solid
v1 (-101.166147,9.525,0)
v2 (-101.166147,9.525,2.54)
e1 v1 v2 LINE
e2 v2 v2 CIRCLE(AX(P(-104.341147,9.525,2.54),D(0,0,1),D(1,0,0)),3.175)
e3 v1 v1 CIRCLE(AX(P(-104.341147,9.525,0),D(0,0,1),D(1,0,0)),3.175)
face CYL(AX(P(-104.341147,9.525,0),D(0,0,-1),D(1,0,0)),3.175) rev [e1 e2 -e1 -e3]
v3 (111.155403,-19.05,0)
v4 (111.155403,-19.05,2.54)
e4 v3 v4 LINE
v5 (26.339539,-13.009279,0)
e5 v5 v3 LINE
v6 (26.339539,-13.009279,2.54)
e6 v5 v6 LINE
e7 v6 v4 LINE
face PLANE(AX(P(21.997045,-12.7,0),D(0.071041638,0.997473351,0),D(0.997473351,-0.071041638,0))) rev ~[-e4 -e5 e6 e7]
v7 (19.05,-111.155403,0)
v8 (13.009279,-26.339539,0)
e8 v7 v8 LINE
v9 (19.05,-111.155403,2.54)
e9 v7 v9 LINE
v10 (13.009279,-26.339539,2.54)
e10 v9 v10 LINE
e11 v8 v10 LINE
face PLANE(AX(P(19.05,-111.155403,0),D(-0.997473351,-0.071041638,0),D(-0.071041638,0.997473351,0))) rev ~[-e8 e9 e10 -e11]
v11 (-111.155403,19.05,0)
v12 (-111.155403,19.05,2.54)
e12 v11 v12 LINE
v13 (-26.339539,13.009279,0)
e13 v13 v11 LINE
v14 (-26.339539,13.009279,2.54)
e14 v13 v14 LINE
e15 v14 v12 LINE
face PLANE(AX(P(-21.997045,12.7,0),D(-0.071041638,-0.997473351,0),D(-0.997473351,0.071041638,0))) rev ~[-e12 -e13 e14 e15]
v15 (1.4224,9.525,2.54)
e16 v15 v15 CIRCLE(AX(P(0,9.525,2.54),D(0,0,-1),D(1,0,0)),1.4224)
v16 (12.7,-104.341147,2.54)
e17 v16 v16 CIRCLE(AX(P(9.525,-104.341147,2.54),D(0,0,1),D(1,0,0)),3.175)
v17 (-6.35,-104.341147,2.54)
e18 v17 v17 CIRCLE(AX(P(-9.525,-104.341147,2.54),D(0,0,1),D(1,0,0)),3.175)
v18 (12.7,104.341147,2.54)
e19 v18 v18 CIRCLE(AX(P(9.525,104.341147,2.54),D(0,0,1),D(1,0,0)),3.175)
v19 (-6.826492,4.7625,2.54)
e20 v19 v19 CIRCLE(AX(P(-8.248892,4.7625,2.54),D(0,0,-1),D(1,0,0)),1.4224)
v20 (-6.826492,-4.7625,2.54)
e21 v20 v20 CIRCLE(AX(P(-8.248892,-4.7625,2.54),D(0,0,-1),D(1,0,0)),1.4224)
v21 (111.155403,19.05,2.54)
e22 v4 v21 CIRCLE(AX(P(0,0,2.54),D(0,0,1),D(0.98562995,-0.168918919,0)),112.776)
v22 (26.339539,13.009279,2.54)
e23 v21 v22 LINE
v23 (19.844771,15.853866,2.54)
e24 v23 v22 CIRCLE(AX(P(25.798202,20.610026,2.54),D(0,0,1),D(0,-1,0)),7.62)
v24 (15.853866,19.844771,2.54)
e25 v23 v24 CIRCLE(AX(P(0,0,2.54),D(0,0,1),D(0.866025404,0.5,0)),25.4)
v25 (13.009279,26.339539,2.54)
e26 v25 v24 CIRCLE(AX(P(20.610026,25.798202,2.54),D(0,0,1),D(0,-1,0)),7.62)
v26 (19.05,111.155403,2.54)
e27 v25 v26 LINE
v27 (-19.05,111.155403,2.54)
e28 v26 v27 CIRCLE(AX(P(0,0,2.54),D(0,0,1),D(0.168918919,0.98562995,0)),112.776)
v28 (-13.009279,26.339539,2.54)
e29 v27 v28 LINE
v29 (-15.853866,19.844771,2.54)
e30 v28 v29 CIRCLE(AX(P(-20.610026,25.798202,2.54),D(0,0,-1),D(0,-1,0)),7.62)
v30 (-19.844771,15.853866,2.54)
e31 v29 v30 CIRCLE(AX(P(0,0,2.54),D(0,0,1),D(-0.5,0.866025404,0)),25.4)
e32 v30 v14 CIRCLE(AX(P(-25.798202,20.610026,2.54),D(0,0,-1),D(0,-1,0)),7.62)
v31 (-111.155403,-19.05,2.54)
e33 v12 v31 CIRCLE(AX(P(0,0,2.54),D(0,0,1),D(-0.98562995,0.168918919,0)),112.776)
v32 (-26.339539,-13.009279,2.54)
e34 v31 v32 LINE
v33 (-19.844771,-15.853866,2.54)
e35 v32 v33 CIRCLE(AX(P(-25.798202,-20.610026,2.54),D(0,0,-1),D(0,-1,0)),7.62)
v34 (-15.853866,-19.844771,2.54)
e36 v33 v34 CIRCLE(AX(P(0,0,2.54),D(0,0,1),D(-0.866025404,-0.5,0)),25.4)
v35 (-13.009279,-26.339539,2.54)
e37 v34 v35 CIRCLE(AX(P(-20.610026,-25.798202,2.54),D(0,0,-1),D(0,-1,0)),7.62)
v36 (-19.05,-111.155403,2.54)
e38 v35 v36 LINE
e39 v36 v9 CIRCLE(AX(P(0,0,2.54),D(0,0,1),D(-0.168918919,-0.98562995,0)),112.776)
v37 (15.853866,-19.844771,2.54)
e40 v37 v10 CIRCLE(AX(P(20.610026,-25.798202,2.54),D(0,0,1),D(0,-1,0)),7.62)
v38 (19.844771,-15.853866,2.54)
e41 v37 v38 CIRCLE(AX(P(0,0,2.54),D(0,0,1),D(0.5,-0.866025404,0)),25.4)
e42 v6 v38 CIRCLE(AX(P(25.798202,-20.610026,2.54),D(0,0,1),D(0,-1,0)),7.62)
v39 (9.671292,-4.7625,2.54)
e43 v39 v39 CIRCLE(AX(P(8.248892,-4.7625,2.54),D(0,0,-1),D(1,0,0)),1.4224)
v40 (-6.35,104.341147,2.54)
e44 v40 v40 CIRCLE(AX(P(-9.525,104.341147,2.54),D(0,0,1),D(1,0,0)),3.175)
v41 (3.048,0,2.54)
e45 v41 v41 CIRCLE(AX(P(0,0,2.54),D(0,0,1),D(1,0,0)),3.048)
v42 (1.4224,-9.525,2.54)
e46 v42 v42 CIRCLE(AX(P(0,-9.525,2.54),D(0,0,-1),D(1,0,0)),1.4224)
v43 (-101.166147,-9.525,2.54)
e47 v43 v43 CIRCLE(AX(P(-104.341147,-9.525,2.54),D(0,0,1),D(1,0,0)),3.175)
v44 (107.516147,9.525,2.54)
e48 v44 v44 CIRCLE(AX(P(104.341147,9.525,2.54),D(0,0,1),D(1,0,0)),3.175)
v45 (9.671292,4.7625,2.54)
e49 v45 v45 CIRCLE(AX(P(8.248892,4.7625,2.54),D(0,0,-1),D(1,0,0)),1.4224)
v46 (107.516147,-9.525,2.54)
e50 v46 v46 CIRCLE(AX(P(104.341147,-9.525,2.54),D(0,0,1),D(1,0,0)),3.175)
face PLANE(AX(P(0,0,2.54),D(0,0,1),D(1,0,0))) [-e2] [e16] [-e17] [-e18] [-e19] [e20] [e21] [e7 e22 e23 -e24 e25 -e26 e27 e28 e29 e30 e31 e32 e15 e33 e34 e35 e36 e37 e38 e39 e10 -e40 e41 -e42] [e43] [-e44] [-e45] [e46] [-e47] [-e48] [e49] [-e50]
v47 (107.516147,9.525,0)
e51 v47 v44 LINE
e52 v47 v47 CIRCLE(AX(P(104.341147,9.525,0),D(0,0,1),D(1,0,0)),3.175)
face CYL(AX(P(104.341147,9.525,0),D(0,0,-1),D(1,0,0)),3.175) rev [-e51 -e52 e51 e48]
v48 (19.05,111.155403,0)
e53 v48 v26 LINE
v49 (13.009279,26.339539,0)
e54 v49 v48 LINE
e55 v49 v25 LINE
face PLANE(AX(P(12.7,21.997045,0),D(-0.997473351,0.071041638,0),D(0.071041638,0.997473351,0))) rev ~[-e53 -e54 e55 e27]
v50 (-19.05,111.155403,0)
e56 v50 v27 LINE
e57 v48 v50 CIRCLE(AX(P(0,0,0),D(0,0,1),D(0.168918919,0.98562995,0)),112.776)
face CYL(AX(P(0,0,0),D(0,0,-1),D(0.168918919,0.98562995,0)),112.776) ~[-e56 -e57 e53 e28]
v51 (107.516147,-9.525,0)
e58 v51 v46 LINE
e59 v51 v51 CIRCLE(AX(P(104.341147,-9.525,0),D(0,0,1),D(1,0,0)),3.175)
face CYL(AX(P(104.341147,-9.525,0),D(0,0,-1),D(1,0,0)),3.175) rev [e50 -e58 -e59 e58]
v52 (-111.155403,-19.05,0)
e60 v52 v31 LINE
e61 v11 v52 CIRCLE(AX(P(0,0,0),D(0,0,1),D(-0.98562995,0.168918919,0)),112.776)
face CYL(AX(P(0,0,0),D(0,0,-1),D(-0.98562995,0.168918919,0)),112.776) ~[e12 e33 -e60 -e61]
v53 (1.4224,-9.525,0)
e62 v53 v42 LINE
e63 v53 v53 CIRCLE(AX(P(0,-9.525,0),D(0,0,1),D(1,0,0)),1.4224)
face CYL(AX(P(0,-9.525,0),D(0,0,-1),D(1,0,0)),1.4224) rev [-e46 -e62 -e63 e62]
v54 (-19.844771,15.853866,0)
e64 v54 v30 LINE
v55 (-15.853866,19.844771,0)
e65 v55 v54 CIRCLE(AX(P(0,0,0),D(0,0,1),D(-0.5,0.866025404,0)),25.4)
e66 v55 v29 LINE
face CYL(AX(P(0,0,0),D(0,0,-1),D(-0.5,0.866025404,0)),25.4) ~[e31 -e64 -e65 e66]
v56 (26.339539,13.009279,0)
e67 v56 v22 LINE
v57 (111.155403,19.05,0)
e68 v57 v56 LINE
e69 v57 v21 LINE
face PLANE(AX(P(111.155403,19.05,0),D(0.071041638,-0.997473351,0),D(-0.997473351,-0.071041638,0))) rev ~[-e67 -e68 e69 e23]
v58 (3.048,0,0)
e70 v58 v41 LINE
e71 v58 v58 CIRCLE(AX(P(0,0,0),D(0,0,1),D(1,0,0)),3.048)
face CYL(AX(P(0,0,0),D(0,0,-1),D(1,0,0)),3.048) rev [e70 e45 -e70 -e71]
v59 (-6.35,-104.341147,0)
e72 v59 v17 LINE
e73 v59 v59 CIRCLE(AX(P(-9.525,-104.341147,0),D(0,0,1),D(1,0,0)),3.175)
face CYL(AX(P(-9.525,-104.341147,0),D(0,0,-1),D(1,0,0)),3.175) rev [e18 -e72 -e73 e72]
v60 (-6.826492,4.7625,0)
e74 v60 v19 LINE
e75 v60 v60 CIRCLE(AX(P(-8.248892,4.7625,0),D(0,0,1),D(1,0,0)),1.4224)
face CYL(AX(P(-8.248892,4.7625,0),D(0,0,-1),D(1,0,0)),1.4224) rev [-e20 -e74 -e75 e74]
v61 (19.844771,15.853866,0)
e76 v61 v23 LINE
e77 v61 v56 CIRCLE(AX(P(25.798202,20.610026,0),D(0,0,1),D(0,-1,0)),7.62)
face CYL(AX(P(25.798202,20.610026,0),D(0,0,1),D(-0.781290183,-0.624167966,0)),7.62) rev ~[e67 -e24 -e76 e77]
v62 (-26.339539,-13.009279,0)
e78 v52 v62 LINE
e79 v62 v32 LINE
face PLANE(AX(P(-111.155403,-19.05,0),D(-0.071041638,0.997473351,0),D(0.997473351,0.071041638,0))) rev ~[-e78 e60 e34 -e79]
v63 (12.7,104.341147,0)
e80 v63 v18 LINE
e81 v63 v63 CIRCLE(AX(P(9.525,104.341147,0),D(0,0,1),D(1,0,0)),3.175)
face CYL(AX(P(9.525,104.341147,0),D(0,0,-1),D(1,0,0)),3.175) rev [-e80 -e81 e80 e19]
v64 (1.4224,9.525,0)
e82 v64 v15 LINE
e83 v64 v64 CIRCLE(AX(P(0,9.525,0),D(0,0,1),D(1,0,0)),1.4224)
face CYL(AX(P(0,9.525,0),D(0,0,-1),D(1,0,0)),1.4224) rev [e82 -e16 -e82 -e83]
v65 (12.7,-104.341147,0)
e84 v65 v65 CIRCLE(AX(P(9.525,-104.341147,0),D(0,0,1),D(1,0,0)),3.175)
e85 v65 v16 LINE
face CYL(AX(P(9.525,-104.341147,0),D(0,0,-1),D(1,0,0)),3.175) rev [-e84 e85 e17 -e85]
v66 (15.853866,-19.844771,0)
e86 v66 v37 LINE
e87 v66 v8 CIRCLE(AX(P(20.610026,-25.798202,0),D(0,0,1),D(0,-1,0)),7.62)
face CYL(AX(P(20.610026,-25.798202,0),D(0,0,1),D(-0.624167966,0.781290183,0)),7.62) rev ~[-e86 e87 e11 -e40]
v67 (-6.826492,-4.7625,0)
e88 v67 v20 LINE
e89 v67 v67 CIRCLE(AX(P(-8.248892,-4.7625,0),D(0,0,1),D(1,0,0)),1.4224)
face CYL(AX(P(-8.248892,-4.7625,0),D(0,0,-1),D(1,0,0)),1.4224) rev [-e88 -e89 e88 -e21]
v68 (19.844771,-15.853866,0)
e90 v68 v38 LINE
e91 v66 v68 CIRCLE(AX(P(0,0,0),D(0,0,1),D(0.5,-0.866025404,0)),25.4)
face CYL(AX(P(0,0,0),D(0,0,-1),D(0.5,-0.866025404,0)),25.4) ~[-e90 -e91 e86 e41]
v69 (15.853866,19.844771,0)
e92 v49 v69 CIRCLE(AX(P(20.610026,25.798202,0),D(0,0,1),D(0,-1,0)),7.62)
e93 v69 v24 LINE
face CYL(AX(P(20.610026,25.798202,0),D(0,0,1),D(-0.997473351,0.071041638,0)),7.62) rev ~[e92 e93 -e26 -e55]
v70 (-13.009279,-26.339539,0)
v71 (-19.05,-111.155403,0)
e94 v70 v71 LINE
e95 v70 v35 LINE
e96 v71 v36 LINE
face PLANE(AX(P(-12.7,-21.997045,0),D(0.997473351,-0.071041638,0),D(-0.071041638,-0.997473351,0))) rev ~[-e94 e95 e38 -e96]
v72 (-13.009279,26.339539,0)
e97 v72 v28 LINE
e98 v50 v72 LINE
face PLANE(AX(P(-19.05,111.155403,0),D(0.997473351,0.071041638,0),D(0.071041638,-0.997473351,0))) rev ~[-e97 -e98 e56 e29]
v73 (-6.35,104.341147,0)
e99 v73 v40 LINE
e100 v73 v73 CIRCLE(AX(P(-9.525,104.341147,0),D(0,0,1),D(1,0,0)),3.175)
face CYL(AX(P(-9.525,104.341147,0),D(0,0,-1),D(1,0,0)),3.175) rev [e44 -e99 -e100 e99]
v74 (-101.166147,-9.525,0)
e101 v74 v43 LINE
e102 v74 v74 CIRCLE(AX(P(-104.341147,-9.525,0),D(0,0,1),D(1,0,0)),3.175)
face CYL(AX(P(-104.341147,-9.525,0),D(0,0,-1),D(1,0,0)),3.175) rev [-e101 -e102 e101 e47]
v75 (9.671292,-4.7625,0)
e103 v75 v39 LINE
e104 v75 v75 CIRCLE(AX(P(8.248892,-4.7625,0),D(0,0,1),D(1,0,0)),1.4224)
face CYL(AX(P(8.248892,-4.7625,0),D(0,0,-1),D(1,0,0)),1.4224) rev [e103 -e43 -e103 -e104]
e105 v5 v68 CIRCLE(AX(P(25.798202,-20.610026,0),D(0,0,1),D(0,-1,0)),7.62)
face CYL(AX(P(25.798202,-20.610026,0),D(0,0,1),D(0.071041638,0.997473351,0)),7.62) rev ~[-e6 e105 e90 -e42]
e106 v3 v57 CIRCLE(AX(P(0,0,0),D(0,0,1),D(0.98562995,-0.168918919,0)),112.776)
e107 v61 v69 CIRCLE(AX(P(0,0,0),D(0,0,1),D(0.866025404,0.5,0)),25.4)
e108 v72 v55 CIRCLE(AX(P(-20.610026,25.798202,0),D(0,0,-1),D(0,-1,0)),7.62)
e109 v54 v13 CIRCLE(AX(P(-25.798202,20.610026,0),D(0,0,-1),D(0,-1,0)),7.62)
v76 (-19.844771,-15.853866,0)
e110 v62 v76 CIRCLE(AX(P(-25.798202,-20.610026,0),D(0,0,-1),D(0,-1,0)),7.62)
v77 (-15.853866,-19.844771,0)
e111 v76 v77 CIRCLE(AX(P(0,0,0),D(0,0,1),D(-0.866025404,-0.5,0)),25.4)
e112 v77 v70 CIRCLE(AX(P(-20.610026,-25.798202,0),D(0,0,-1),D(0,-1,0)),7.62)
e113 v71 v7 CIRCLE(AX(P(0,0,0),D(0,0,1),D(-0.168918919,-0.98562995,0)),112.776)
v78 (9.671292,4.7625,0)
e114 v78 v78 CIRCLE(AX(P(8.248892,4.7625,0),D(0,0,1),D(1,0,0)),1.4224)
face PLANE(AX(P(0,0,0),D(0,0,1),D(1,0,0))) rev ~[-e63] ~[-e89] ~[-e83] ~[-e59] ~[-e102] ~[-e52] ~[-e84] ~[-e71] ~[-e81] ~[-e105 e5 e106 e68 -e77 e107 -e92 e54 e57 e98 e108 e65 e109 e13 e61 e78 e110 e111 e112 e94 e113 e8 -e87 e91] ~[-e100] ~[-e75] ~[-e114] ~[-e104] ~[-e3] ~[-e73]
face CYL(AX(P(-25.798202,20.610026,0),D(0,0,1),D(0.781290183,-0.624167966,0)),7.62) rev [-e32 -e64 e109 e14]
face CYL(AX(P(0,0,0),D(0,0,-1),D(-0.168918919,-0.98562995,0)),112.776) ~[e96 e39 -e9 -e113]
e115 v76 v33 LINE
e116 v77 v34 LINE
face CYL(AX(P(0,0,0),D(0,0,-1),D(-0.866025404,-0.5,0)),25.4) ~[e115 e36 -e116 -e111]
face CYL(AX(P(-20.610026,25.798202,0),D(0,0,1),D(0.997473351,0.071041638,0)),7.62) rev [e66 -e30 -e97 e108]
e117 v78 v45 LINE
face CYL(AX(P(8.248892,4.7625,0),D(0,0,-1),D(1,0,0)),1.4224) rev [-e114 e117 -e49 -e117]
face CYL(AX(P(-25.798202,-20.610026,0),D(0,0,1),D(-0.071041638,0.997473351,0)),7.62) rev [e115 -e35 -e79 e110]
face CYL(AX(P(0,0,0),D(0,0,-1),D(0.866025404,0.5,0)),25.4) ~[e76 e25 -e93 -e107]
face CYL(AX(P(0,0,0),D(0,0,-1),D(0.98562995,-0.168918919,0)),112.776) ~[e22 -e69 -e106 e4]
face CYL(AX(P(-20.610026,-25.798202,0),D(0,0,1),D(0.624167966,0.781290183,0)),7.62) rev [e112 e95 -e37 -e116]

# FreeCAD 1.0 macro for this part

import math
import FreeCAD as App
import Part
import Sketcher

V = App.Vector
Q = App.Units.Quantity


def edges_at(feature, points):
    """Names of the edges that pass closest to the given points."""
    edges = feature.Shape.Edges
    near = lambda p: min(range(len(edges)), key=lambda i: edges[i].distToShape(Part.Vertex(*p))[0])
    return sorted({f"Edge{near(p) + 1}" for p in points})

doc = App.newDocument("Part")
body = doc.addObject("PartDesign::Body", "Body")

sketch1 = body.newObject("Sketcher::SketchObject", "Sketch")
sketch1.AttachmentSupport = (doc.getObject("XY_Plane"), [""])
sketch1.MapMode = "FlatFace"
sketch1.addGeometry(Part.LineSegment(V(-19.05, 111.155403, 0), V(-12.7, 21.997045, 0)), False)
sketch1.addGeometry(Part.ArcOfCircle(Part.Circle(V(0, 0, 0), V(0, 0, 1), 25.4), math.radians(120), math.radians(150)), False)
sketch1.addGeometry(Part.LineSegment(V(-21.997045, 12.7, 0), V(-111.155403, 19.05, 0)), False)
sketch1.addGeometry(Part.ArcOfCircle(Part.Circle(V(0, 0, 0), V(0, 0, 1), 112.776), math.radians(170.275031), math.radians(189.724969)), False)
sketch1.addGeometry(Part.LineSegment(V(-111.155403, -19.05, 0), V(-21.997045, -12.7, 0)), False)
sketch1.addGeometry(Part.ArcOfCircle(Part.Circle(V(0, 0, 0), V(0, 0, 1), 25.4), math.radians(-150), math.radians(-120)), False)
sketch1.addGeometry(Part.LineSegment(V(-12.7, -21.997045, 0), V(-19.05, -111.155403, 0)), False)
sketch1.addGeometry(Part.ArcOfCircle(Part.Circle(V(0, 0, 0), V(0, 0, 1), 112.776), math.radians(-99.724969), math.radians(-80.275031)), False)
sketch1.addGeometry(Part.LineSegment(V(19.05, -111.155403, 0), V(12.7, -21.997045, 0)), False)
sketch1.addGeometry(Part.ArcOfCircle(Part.Circle(V(0, 0, 0), V(0, 0, 1), 25.4), math.radians(-60), math.radians(-30)), False)
sketch1.addGeometry(Part.LineSegment(V(21.997045, -12.7, 0), V(111.155403, -19.05, 0)), False)
sketch1.addGeometry(Part.ArcOfCircle(Part.Circle(V(0, 0, 0), V(0, 0, 1), 112.776), math.radians(-9.724969), math.radians(9.724969)), False)
sketch1.addGeometry(Part.LineSegment(V(111.155403, 19.05, 0), V(21.997045, 12.7, 0)), False)
sketch1.addGeometry(Part.ArcOfCircle(Part.Circle(V(0, 0, 0), V(0, 0, 1), 25.4), math.radians(30), math.radians(60)), False)
sketch1.addGeometry(Part.LineSegment(V(12.7, 21.997045, 0), V(19.05, 111.155403, 0)), False)
sketch1.addGeometry(Part.ArcOfCircle(Part.Circle(V(0, 0, 0), V(0, 0, 1), 112.776), math.radians(80.275031), math.radians(99.724969)), False)
sketch1.addGeometry(Part.Circle(V(-9.525, -104.341147, 0), V(0, 0, 1), 3.175), False)
sketch1.addGeometry(Part.Circle(V(-104.341147, -9.525, 0), V(0, 0, 1), 3.175), False)
sketch1.addGeometry(Part.Circle(V(0, 0, 0), V(0, 0, 1), 3.048), False)
sketch1.addGeometry(Part.Circle(V(9.525, -104.341147, 0), V(0, 0, 1), 3.175), False)
sketch1.addGeometry(Part.Circle(V(104.341147, -9.525, 0), V(0, 0, 1), 3.175), False)
sketch1.addGeometry(Part.Circle(V(-104.341147, 9.525, 0), V(0, 0, 1), 3.175), False)
sketch1.addGeometry(Part.Circle(V(-9.525, 104.341147, 0), V(0, 0, 1), 3.175), False)
sketch1.addGeometry(Part.Circle(V(104.341147, 9.525, 0), V(0, 0, 1), 3.175), False)
sketch1.addGeometry(Part.Circle(V(9.525, 104.341147, 0), V(0, 0, 1), 3.175), False)
sketch1.addConstraint(Sketcher.Constraint("Coincident", 0, 2, 1, 1))
sketch1.addConstraint(Sketcher.Constraint("Coincident", 1, 2, 2, 1))
sketch1.addConstraint(Sketcher.Constraint("Coincident", 2, 2, 3, 1))
sketch1.addConstraint(Sketcher.Constraint("Coincident", 3, 2, 4, 1))
sketch1.addConstraint(Sketcher.Constraint("Coincident", 4, 2, 5, 1))
sketch1.addConstraint(Sketcher.Constraint("Coincident", 5, 2, 6, 1))
sketch1.addConstraint(Sketcher.Constraint("Coincident", 6, 2, 7, 1))
sketch1.addConstraint(Sketcher.Constraint("Coincident", 7, 2, 8, 1))
sketch1.addConstraint(Sketcher.Constraint("Coincident", 8, 2, 9, 1))
sketch1.addConstraint(Sketcher.Constraint("Coincident", 9, 2, 10, 1))
sketch1.addConstraint(Sketcher.Constraint("Coincident", 10, 2, 11, 1))
sketch1.addConstraint(Sketcher.Constraint("Coincident", 11, 2, 12, 1))
sketch1.addConstraint(Sketcher.Constraint("Coincident", 12, 2, 13, 1))
sketch1.addConstraint(Sketcher.Constraint("Coincident", 13, 2, 14, 1))
sketch1.addConstraint(Sketcher.Constraint("Coincident", 14, 2, 15, 1))
sketch1.addConstraint(Sketcher.Constraint("Coincident", 15, 2, 0, 1))
sketch1.addConstraint(Sketcher.Constraint("Coincident", 1, 3, -1, 1))
sketch1.addConstraint(Sketcher.Constraint("Coincident", 3, 3, -1, 1))
sketch1.addConstraint(Sketcher.Constraint("Coincident", 5, 3, -1, 1))
sketch1.addConstraint(Sketcher.Constraint("Coincident", 7, 3, -1, 1))
sketch1.addConstraint(Sketcher.Constraint("Coincident", 9, 3, -1, 1))
sketch1.addConstraint(Sketcher.Constraint("Coincident", 11, 3, -1, 1))
sketch1.addConstraint(Sketcher.Constraint("Coincident", 13, 3, -1, 1))
sketch1.addConstraint(Sketcher.Constraint("Coincident", 15, 3, -1, 1))
sketch1.addConstraint(Sketcher.Constraint("Coincident", 18, 3, -1, 1))
sketch1.addConstraint(Sketcher.Constraint("Equal", 1, 5))
sketch1.addConstraint(Sketcher.Constraint("Equal", 3, 7))
sketch1.addConstraint(Sketcher.Constraint("Equal", 5, 9))
sketch1.addConstraint(Sketcher.Constraint("Equal", 7, 11))
sketch1.addConstraint(Sketcher.Constraint("Equal", 9, 13))
sketch1.addConstraint(Sketcher.Constraint("Equal", 11, 15))
sketch1.addConstraint(Sketcher.Constraint("Equal", 16, 17))
sketch1.addConstraint(Sketcher.Constraint("Equal", 17, 19))
sketch1.addConstraint(Sketcher.Constraint("Equal", 19, 20))
sketch1.addConstraint(Sketcher.Constraint("Equal", 20, 21))
sketch1.addConstraint(Sketcher.Constraint("Equal", 21, 22))
sketch1.addConstraint(Sketcher.Constraint("Equal", 22, 23))
sketch1.addConstraint(Sketcher.Constraint("Equal", 23, 24))
sketch1.addConstraint(Sketcher.Constraint("Symmetric", 20, 3, 21, 3, -1, 1))
sketch1.addConstraint(Sketcher.Constraint("Symmetric", 19, 3, 22, 3, -1, 1))
sketch1.addConstraint(Sketcher.Constraint("Symmetric", 17, 3, 23, 3, -1, 1))
sketch1.addConstraint(Sketcher.Constraint("Symmetric", 16, 3, 24, 3, -1, 1))
sketch1.addConstraint(Sketcher.Constraint("Symmetric", 16, 3, 19, 3, -2))
sketch1.addConstraint(Sketcher.Constraint("Symmetric", 17, 3, 20, 3, -2))
sketch1.addConstraint(Sketcher.Constraint("Perpendicular", 0, 4))
sketch1.addConstraint(Sketcher.Constraint("Perpendicular", 2, 6))
sketch1.addConstraint(Sketcher.Constraint("Perpendicular", 4, 8))
sketch1.addConstraint(Sketcher.Constraint("Perpendicular", 6, 10))
sketch1.addConstraint(Sketcher.Constraint("Perpendicular", 8, 12))
sketch1.addConstraint(Sketcher.Constraint("Perpendicular", 10, 14))
sketch1.addConstraint(Sketcher.Constraint("Horizontal", 6, 2, 7, 2))
sketch1.addConstraint(Sketcher.Constraint("Horizontal", 5, 2, 8, 2))
sketch1.addConstraint(Sketcher.Constraint("Horizontal", 4, 2, 9, 2))
sketch1.addConstraint(Sketcher.Constraint("Horizontal", 2, 2, 11, 2))
sketch1.addConstraint(Sketcher.Constraint("Horizontal", 0, 2, 13, 2))
sketch1.addConstraint(Sketcher.Constraint("Vertical", 2, 2, 3, 2))
sketch1.addConstraint(Sketcher.Constraint("Vertical", 0, 2, 5, 2))
sketch1.addConstraint(Sketcher.Constraint("Equal", 0, 2))
sketch1.addConstraint(Sketcher.Constraint("Radius", 1, Q("1 in")))
sketch1.addConstraint(Sketcher.Constraint("Diameter", 16, Q("0.25 in")))
sketch1.addConstraint(Sketcher.Constraint("Diameter", 18, Q("0.24 in")))
sketch1.addConstraint(Sketcher.Constraint("Radius", 3, Q("4.44 in")))
sketch1.addConstraint(Sketcher.Constraint("DistanceY", 4, 2, 1, 2, Q("1 in")))
sketch1.addConstraint(Sketcher.Constraint("DistanceY", 3, 2, 2, 2, Q("1.5 in")))
sketch1.addConstraint(Sketcher.Constraint("DistanceX", 16, 3, 19, 3, Q("0.75 in")))
sketch1.addConstraint(Sketcher.Constraint("DistanceY", 17, 3, 21, 3, Q("0.75 in")))
sketch1.addConstraint(Sketcher.Constraint("DistanceY", 16, 3, -1, 1, 104.341147))
sketch1.addConstraint(Sketcher.Constraint("DistanceX", 17, 3, -1, 1, 104.341147))
pad1 = body.newObject("PartDesign::Pad", "Pad")
pad1.Profile = sketch1
pad1.Length = Q("0.1 in")
doc.recompute()

fillet = body.newObject("PartDesign::Fillet", "Fillet")
fillet.Base = (pad1, edges_at(pad1, [
    (12.7, 21.997, 1.27),
    (21.997, 12.7, 1.27),
    (21.997, -12.7, 1.27),
    (12.7, -21.997, 1.27),
    (-12.7, -21.997, 1.27),
    (-21.997, -12.7, 1.27),
    (-21.997, 12.7, 1.27),
    (-12.7, 21.997, 1.27),
]))
fillet.Radius = Q("0.3 in")

sketch2 = body.newObject("Sketcher::SketchObject", "Sketch001")
sketch2.AttachmentSupport = (doc.getObject("XY_Plane"), [""])
sketch2.MapMode = "FlatFace"
sketch2.addGeometry(Part.Circle(V(0, 9.525, 0), V(0, 0, 1), 1.4224), False)
sketch2.addGeometry(Part.Circle(V(8.248892, 4.7625, 0), V(0, 0, 1), 1.4224), False)
sketch2.addGeometry(Part.Circle(V(8.248892, -4.7625, 0), V(0, 0, 1), 1.4224), False)
sketch2.addGeometry(Part.Circle(V(0, -9.525, 0), V(0, 0, 1), 1.4224), False)
sketch2.addGeometry(Part.Circle(V(-8.248892, -4.7625, 0), V(0, 0, 1), 1.4224), False)
sketch2.addGeometry(Part.Circle(V(-8.248892, 4.7625, 0), V(0, 0, 1), 1.4224), False)
sketch2.addConstraint(Sketcher.Constraint("Equal", 0, 1))
sketch2.addConstraint(Sketcher.Constraint("Equal", 1, 2))
sketch2.addConstraint(Sketcher.Constraint("Equal", 2, 3))
sketch2.addConstraint(Sketcher.Constraint("Equal", 3, 4))
sketch2.addConstraint(Sketcher.Constraint("Equal", 4, 5))
sketch2.addConstraint(Sketcher.Constraint("Symmetric", 0, 3, 3, 3, -1, 1))
sketch2.addConstraint(Sketcher.Constraint("Symmetric", 1, 3, 4, 3, -1, 1))
sketch2.addConstraint(Sketcher.Constraint("Symmetric", 2, 3, 5, 3, -1, 1))
sketch2.addConstraint(Sketcher.Constraint("Symmetric", 2, 3, 4, 3, -2))
sketch2.addConstraint(Sketcher.Constraint("PointOnObject", 0, 3, -2))
sketch2.addConstraint(Sketcher.Constraint("Diameter", 0, Q("0.112 in")))
sketch2.addConstraint(Sketcher.Constraint("DistanceY", 3, 3, 0, 3, Q("0.75 in")))
sketch2.addConstraint(Sketcher.Constraint("DistanceY", -1, 1, 1, 3, Q("0.1875 in")))
sketch2.addConstraint(Sketcher.Constraint("DistanceX", -1, 1, 1, 3, 8.248892))
pocket1 = body.newObject("PartDesign::Pocket", "Pocket")
pocket1.Profile = sketch2
pocket1.Type = "ThroughAll"
pocket1.Reversed = True

doc.recompute()
